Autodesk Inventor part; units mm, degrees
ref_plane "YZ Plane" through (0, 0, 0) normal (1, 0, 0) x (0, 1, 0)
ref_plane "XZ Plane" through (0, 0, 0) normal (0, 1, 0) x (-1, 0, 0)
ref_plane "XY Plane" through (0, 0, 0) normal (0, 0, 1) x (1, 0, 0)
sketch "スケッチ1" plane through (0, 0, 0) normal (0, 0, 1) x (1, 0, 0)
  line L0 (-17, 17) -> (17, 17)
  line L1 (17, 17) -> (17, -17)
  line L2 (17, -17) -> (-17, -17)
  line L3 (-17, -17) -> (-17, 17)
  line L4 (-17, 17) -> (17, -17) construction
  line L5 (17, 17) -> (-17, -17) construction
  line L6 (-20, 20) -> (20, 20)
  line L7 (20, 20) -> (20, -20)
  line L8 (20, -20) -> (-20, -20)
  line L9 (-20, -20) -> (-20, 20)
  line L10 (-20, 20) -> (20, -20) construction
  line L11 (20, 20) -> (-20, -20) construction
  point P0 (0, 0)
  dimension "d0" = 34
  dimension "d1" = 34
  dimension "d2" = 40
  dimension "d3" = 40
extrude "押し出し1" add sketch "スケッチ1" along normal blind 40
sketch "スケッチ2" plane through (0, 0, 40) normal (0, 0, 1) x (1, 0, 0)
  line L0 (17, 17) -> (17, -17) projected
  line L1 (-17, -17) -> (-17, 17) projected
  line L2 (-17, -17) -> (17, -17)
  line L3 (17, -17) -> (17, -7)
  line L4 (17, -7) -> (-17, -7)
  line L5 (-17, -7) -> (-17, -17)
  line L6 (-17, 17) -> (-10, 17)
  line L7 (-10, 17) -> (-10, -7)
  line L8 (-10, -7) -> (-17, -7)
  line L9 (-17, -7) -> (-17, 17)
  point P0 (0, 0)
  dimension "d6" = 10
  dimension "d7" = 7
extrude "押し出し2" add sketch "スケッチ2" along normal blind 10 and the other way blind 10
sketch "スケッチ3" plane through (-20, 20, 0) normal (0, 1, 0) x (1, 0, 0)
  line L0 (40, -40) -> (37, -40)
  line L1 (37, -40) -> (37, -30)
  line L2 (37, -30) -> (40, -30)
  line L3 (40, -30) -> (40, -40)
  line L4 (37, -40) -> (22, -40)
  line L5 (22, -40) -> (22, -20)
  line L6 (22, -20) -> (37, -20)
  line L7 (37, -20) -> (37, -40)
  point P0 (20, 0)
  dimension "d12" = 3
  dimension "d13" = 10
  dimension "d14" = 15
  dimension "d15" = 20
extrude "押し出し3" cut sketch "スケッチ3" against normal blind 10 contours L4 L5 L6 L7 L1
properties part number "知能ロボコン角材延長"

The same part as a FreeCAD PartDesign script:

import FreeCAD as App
import Part
import Sketcher

doc = App.newDocument("Part")
params = doc.addObject("Spreadsheet::Sheet", "Params")
for row, (alias, value) in enumerate([
    ("sketch1_width", "40 mm"),
    ("sketch1_width2", "34 mm"),
    ("pad1_length", "40 mm"),
    ("sketch2_width", "7 mm"),
    ("sketch2_height", "10 mm"),
    ("pad2_length", "10 mm"),
    ("pad2_length2", "10 mm"),
    ("sketch3_width", "15 mm"),
    ("sketch3_height", "20 mm"),
    ("pocket1_length", "10 mm"),
], start=1):
    params.set(f"A{row}", alias)
    params.set(f"B{row}", "=" + value)
    params.setAlias(f"B{row}", alias)

body = doc.addObject("PartDesign::Body", "Body")

sketch1 = doc.addObject("Sketcher::SketchObject", "Sketch")
body.addObject(sketch1)
sketch1.AttachmentSupport = (doc.XY_Plane, [""])
sketch1.MapMode = "FlatFace"
sketch1.addGeometry([
    Part.LineSegment(App.Vector(20, 20, 0), App.Vector(-20, 20, 0)),
    Part.LineSegment(App.Vector(-20, 20, 0), App.Vector(-20, -20, 0)),
    Part.LineSegment(App.Vector(-20, -20, 0), App.Vector(20, -20, 0)),
    Part.LineSegment(App.Vector(20, -20, 0), App.Vector(20, 20, 0)),
    Part.LineSegment(App.Vector(-17, -17, 0), App.Vector(-17, 17, 0)),
    Part.LineSegment(App.Vector(-17, 17, 0), App.Vector(17, 17, 0)),
    Part.LineSegment(App.Vector(17, 17, 0), App.Vector(17, -17, 0)),
    Part.LineSegment(App.Vector(17, -17, 0), App.Vector(-17, -17, 0)),
], False)
sketch1.addConstraint([
    Sketcher.Constraint("Coincident", 0, 2, 1, 1),
    Sketcher.Constraint("Coincident", 1, 2, 2, 1),
    Sketcher.Constraint("Coincident", 2, 2, 3, 1),
    Sketcher.Constraint("Coincident", 3, 2, 0, 1),
    Sketcher.Constraint("Coincident", 4, 2, 5, 1),
    Sketcher.Constraint("Coincident", 5, 2, 6, 1),
    Sketcher.Constraint("Coincident", 6, 2, 7, 1),
    Sketcher.Constraint("Coincident", 7, 2, 4, 1),
    Sketcher.Constraint("Horizontal", 0),
    Sketcher.Constraint("Vertical", 1),
    Sketcher.Constraint("Horizontal", 2),
    Sketcher.Constraint("Vertical", 3),
    Sketcher.Constraint("Vertical", 4),
    Sketcher.Constraint("Horizontal", 5),
    Sketcher.Constraint("Vertical", 6),
    Sketcher.Constraint("Horizontal", 7),
    Sketcher.Constraint("Symmetric", 0, 2, 2, 2, -1, 1),
    Sketcher.Constraint("Symmetric", 4, 2, 6, 2, -1, 1),
    Sketcher.Constraint("Equal", 2, 1),
    Sketcher.Constraint("Equal", 7, 4),
    Sketcher.Constraint("DistanceX", 0, 2, 0, 1, 40.0),
    Sketcher.Constraint("DistanceX", 5, 1, 5, 2, 34.0),
])
sketch1.setExpression("Constraints[20]", "Params.sketch1_width")
sketch1.setExpression("Constraints[21]", "Params.sketch1_width2")
pad1 = doc.addObject("PartDesign::Pad", "Pad")
body.addObject(pad1)
pad1.Profile = sketch1
pad1.setExpression("Length", "Params.pad1_length")

sketch2 = doc.addObject("Sketcher::SketchObject", "Sketch001")
body.addObject(sketch2)
sketch2.AttachmentSupport = (doc.XY_Plane, [""])
sketch2.MapMode = "FlatFace"
sketch2.AttachmentOffset = App.Placement(App.Vector(0, 0, 40), App.Rotation())
sketch2.addGeometry([
    Part.LineSegment(App.Vector(17, -17, 0), App.Vector(17, -7, 0)),
    Part.LineSegment(App.Vector(17, -7, 0), App.Vector(-10, -7, 0)),
    Part.LineSegment(App.Vector(-10, -7, 0), App.Vector(-10, 17, 0)),
    Part.LineSegment(App.Vector(-10, 17, 0), App.Vector(-17, 17, 0)),
    Part.LineSegment(App.Vector(-17, 17, 0), App.Vector(-17, -17, 0)),
    Part.LineSegment(App.Vector(-17, -17, 0), App.Vector(17, -17, 0)),
], False)
sketch2.addConstraint([
    Sketcher.Constraint("Coincident", 0, 2, 1, 1),
    Sketcher.Constraint("Coincident", 1, 2, 2, 1),
    Sketcher.Constraint("Coincident", 2, 2, 3, 1),
    Sketcher.Constraint("Coincident", 3, 2, 4, 1),
    Sketcher.Constraint("Coincident", 4, 2, 5, 1),
    Sketcher.Constraint("Coincident", 5, 2, 0, 1),
    Sketcher.Constraint("Vertical", 0),
    Sketcher.Constraint("Horizontal", 1),
    Sketcher.Constraint("Vertical", 2),
    Sketcher.Constraint("Horizontal", 3),
    Sketcher.Constraint("Vertical", 4),
    Sketcher.Constraint("Horizontal", 5),
    Sketcher.Constraint("Symmetric", 3, 2, 5, 2, -1, 1),
    Sketcher.Constraint("Equal", 5, 4),
    Sketcher.Constraint("DistanceX", 3, 2, 3, 1, 7.0),
    Sketcher.Constraint("DistanceY", 0, 1, 0, 2, 10.0),
    Sketcher.Constraint("DistanceY", 0, 2, -1, 1, 7.0),
])
sketch2.setExpression("Constraints[14]", "Params.sketch2_width")
sketch2.setExpression("Constraints[15]", "Params.sketch2_height")
pad2 = doc.addObject("PartDesign::Pad", "Pad001")
body.addObject(pad2)
pad2.Profile = sketch2
pad2.Type = "TwoLengths"
pad2.setExpression("Length", "Params.pad2_length")
pad2.setExpression("Length2", "Params.pad2_length2")

sketch3 = doc.addObject("Sketcher::SketchObject", "Sketch002")
body.addObject(sketch3)
sketch3.AttachmentSupport = (doc.XZ_Plane, [""])
sketch3.MapMode = "FlatFace"
sketch3.AttachmentOffset = App.Placement(App.Vector(0, 0, -20), App.Rotation())
sketch3.addGeometry([
    Part.LineSegment(App.Vector(2, 40, 0), App.Vector(17, 40, 0)),
    Part.LineSegment(App.Vector(17, 40, 0), App.Vector(17, 20, 0)),
    Part.LineSegment(App.Vector(17, 20, 0), App.Vector(2, 20, 0)),
    Part.LineSegment(App.Vector(2, 20, 0), App.Vector(2, 40, 0)),
], False)
sketch3.addConstraint([
    Sketcher.Constraint("Coincident", 0, 2, 1, 1),
    Sketcher.Constraint("Coincident", 1, 2, 2, 1),
    Sketcher.Constraint("Coincident", 2, 2, 3, 1),
    Sketcher.Constraint("Coincident", 3, 2, 0, 1),
    Sketcher.Constraint("Horizontal", 0),
    Sketcher.Constraint("Vertical", 1),
    Sketcher.Constraint("Horizontal", 2),
    Sketcher.Constraint("Vertical", 3),
    Sketcher.Constraint("DistanceX", 0, 1, 0, 2, 15.0),
    Sketcher.Constraint("DistanceY", 1, 2, 1, 1, 20.0),
    Sketcher.Constraint("DistanceY", -1, 1, 1, 2, 20.0),
    Sketcher.Constraint("DistanceX", -1, 1, 0, 2, 17.0),
])
sketch3.setExpression("Constraints[8]", "Params.sketch3_width")
sketch3.setExpression("Constraints[9]", "Params.sketch3_height")
pocket1 = doc.addObject("PartDesign::Pocket", "Pocket")
body.addObject(pocket1)
pocket1.Profile = sketch3
pocket1.setExpression("Length", "Params.pocket1_length")
pocket1.Reversed = True

doc.recompute()
